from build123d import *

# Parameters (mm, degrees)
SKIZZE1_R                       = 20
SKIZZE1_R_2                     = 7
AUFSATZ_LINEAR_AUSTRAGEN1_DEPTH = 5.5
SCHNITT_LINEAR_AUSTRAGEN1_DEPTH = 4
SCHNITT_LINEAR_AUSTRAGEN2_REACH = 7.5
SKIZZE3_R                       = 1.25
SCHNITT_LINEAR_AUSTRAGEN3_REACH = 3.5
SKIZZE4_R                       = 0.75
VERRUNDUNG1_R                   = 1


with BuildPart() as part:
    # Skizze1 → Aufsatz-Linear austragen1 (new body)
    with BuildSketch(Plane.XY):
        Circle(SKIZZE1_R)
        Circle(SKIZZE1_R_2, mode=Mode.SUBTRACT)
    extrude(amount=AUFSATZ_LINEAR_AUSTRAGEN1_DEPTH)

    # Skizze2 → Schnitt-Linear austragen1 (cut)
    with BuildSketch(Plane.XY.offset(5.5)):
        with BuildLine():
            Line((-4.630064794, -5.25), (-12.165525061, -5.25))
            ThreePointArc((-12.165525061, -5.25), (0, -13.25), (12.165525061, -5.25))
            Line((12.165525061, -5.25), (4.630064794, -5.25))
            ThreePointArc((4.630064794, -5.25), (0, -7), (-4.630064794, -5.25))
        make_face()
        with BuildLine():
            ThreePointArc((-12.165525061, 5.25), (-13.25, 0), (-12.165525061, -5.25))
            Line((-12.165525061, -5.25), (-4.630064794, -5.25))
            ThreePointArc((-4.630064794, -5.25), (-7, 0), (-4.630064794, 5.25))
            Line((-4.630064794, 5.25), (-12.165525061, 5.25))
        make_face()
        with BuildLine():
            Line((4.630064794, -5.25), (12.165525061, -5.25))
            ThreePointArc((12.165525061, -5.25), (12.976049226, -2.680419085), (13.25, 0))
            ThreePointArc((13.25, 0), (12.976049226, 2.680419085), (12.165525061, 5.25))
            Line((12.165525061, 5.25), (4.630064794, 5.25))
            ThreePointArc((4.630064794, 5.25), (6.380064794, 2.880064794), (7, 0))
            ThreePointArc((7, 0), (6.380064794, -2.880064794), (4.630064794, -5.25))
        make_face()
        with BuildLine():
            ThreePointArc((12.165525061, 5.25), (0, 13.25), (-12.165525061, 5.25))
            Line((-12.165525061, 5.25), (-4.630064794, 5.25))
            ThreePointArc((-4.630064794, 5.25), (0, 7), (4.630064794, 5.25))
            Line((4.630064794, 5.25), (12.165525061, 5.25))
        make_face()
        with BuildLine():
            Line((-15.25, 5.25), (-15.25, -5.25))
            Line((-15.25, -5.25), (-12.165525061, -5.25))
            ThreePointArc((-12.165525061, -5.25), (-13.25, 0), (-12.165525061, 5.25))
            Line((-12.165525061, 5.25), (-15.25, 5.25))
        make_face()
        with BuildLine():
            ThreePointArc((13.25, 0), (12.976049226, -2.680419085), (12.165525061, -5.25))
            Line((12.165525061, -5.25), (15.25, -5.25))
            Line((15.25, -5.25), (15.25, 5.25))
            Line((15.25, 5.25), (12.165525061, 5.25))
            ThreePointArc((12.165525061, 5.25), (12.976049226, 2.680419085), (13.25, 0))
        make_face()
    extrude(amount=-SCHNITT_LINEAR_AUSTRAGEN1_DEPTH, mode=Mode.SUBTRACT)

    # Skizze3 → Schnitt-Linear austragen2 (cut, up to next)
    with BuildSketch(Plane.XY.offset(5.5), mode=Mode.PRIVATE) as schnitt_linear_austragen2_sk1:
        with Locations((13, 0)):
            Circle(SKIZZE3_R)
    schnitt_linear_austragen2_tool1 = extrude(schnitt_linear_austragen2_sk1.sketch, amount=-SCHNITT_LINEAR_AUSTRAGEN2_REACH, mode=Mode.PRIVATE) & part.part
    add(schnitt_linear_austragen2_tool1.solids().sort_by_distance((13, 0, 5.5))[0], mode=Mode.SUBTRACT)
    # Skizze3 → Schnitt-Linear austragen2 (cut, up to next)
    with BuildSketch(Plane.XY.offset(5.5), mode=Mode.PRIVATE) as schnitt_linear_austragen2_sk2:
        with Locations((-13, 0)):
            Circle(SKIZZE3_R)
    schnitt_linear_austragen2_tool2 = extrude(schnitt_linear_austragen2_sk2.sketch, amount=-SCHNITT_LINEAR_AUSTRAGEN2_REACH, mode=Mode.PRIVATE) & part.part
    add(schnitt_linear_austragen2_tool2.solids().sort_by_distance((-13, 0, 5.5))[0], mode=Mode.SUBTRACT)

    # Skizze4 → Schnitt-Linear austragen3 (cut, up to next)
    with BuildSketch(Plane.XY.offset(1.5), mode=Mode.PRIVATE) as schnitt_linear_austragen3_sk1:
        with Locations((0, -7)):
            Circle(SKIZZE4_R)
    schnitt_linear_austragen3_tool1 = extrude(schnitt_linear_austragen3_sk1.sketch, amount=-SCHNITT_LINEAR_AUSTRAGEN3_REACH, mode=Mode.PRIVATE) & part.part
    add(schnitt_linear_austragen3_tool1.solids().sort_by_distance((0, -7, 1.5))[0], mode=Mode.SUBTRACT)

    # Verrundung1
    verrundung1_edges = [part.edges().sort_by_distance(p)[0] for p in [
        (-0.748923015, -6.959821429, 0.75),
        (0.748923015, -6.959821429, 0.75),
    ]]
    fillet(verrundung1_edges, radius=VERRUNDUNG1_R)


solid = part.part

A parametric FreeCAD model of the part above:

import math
import FreeCAD as App
import Part
import Sketcher

V = App.Vector
Q = App.Units.Quantity


def edges_at(feature, points):
    """Names of the edges that pass closest to the given points."""
    edges = feature.Shape.Edges
    near = lambda p: min(range(len(edges)), key=lambda i: edges[i].distToShape(Part.Vertex(*p))[0])
    return sorted({f"Edge{near(p) + 1}" for p in points})

doc = App.newDocument("Part")
body = doc.addObject("PartDesign::Body", "Body")

sketch1 = doc.addObject("Sketcher::SketchObject", "Sketch")
body.addObject(sketch1)
sketch1.AttachmentSupport = (doc.XY_Plane, [""])
sketch1.MapMode = "FlatFace"
sketch1.addGeometry([
    Part.Circle(V(0, 0, 0), V(0, 0, 1), 20),
    Part.Circle(V(0, 0, 0), V(0, 0, 1), 7),
], False)
sketch1.addConstraint([
    Sketcher.Constraint("Coincident", 0, 3, -1, 1),
    Sketcher.Constraint("Coincident", 1, 3, -1, 1),
    Sketcher.Constraint("Diameter", 0, Q("40 mm")),
    Sketcher.Constraint("Diameter", 1, Q("14 mm")),
])
pad1 = doc.addObject("PartDesign::Pad", "Pad")
body.addObject(pad1)
pad1.Profile = sketch1
pad1.Length = 5.5

sketch2 = doc.addObject("Sketcher::SketchObject", "Sketch001")
body.addObject(sketch2)
sketch2.AttachmentSupport = (doc.XY_Plane, [""])
sketch2.MapMode = "FlatFace"
sketch2.AttachmentOffset = App.Placement(V(0, 0, 5.5), App.Rotation())
sketch2.addGeometry([
    Part.ArcOfCircle(Part.Circle(V(0, 0, 0), V(0, 0, 1), 13.3), math.radians(-157), math.radians(-23)),
    Part.LineSegment(V(12.2, -5.2, 0), V(15.2, -5.2, 0)),
    Part.LineSegment(V(15.2, -5.2, 0), V(15.2, 5.2, 0)),
    Part.LineSegment(V(15.2, 5.2, 0), V(12.2, 5.2, 0)),
    Part.ArcOfCircle(Part.Circle(V(0, 0, 0), V(0, 0, 1), 13.3), math.radians(23), math.radians(157)),
    Part.LineSegment(V(-12.2, 5.2, 0), V(-15.2, 5.2, 0)),
    Part.LineSegment(V(-15.2, 5.2, 0), V(-15.2, -5.2, 0)),
    Part.LineSegment(V(-15.2, -5.2, 0), V(-12.2, -5.2, 0)),
    Part.ArcOfCircle(Part.Circle(V(0, 0, 0), V(0, 0, 1), 7), math.radians(0), math.radians(49)),
    Part.ArcOfCircle(Part.Circle(V(0, 0, 0), V(0, 0, 1), 7), math.radians(-49), math.radians(0)),
    Part.ArcOfCircle(Part.Circle(V(0, 0, 0), V(0, 0, 1), 7), math.radians(-131), math.radians(-49)),
    Part.ArcOfCircle(Part.Circle(V(0, 0, 0), V(0, 0, 1), 7), math.radians(131), math.radians(229)),
    Part.ArcOfCircle(Part.Circle(V(0, 0, 0), V(0, 0, 1), 7), math.radians(49), math.radians(131)),
], False)
sketch2.addConstraint([
    Sketcher.Constraint("Coincident", 0, 2, 1, 1),
    Sketcher.Constraint("Coincident", 1, 2, 2, 1),
    Sketcher.Constraint("Coincident", 2, 2, 3, 1),
    Sketcher.Constraint("Coincident", 3, 2, 4, 1),
    Sketcher.Constraint("Coincident", 4, 2, 5, 1),
    Sketcher.Constraint("Coincident", 5, 2, 6, 1),
    Sketcher.Constraint("Coincident", 6, 2, 7, 1),
    Sketcher.Constraint("Coincident", 7, 2, 0, 1),
    Sketcher.Constraint("Tangent", 8, 1, 9, 2),
    Sketcher.Constraint("Tangent", 9, 1, 10, 2),
    Sketcher.Constraint("Tangent", 10, 1, 11, 2),
    Sketcher.Constraint("Tangent", 11, 1, 12, 2),
    Sketcher.Constraint("Tangent", 12, 1, 8, 2),
    Sketcher.Constraint("Horizontal", 1),
    Sketcher.Constraint("Vertical", 2),
    Sketcher.Constraint("Horizontal", 3),
    Sketcher.Constraint("Horizontal", 5),
    Sketcher.Constraint("Vertical", 6),
    Sketcher.Constraint("Horizontal", 7),
    Sketcher.Constraint("Coincident", 0, 3, -1, 1),
    Sketcher.Constraint("Coincident", 4, 3, -1, 1),
    Sketcher.Constraint("Coincident", 8, 3, -1, 1),
    Sketcher.Constraint("Coincident", 10, 3, -1, 1),
    Sketcher.Constraint("Equal", 0, 4),
    Sketcher.Constraint("Symmetric", 1, 2, 5, 2, -1, 1),
    Sketcher.Constraint("PointOnObject", 8, 1, -1),
    Sketcher.Constraint("Horizontal", 3, 2, 4, 2),
    Sketcher.Constraint("Horizontal", 1, 2, 6, 2),
    Sketcher.Constraint("Horizontal", 7, 2, 9, 1),
    Sketcher.Constraint("Horizontal", 9, 1, 10, 1),
    Sketcher.Constraint("Horizontal", 5, 2, 11, 1),
    Sketcher.Constraint("Horizontal", 11, 1, 12, 1),
    Sketcher.Constraint("Radius", 8, Q("7 mm")),
    Sketcher.Constraint("Radius", 0, Q("13.25 mm")),
    Sketcher.Constraint("DistanceY", 2, 1, 2, 2, Q("10.5 mm")),
    Sketcher.Constraint("DistanceX", -1, 1, 1, 2, Q("15.25 mm")),
])
pocket1 = doc.addObject("PartDesign::Pocket", "Pocket")
body.addObject(pocket1)
pocket1.Profile = sketch2
pocket1.Length = 4

sketch3 = doc.addObject("Sketcher::SketchObject", "Sketch002")
body.addObject(sketch3)
sketch3.AttachmentSupport = (doc.XY_Plane, [""])
sketch3.MapMode = "FlatFace"
sketch3.AttachmentOffset = App.Placement(V(0, 0, 5.5), App.Rotation())
sketch3.addGeometry(Part.Circle(V(13, 0, 0), V(0, 0, 1), 1.2), False)
sketch3.addConstraint([
    Sketcher.Constraint("PointOnObject", 0, 3, -1),
    Sketcher.Constraint("Diameter", 0, Q("2.5 mm")),
    Sketcher.Constraint("DistanceX", -1, 1, 0, 3, Q("13 mm")),
])
pocket2 = doc.addObject("PartDesign::Pocket", "Pocket001")
body.addObject(pocket2)
pocket2.Profile = sketch3
pocket2.Length = 5.5

sketch4 = doc.addObject("Sketcher::SketchObject", "Sketch003")
body.addObject(sketch4)
sketch4.AttachmentSupport = (doc.XY_Plane, [""])
sketch4.MapMode = "FlatFace"
sketch4.AttachmentOffset = App.Placement(V(0, 0, 5.5), App.Rotation())
sketch4.addGeometry(Part.Circle(V(-13, 0, 0), V(0, 0, 1), 1.2), False)
sketch4.addConstraint([
    Sketcher.Constraint("PointOnObject", 0, 3, -1),
    Sketcher.Constraint("Diameter", 0, Q("2.5 mm")),
    Sketcher.Constraint("DistanceX", 0, 3, -1, 1, Q("13 mm")),
])
pocket3 = doc.addObject("PartDesign::Pocket", "Pocket002")
body.addObject(pocket3)
pocket3.Profile = sketch4
pocket3.Length = 5.5

sketch5 = doc.addObject("Sketcher::SketchObject", "Sketch004")
body.addObject(sketch5)
sketch5.AttachmentSupport = (doc.XY_Plane, [""])
sketch5.MapMode = "FlatFace"
sketch5.AttachmentOffset = App.Placement(V(0, 0, 1.5), App.Rotation())
sketch5.addGeometry(Part.Circle(V(0, -7, 0), V(0, 0, 1), 0.8), False)
sketch5.addConstraint([
    Sketcher.Constraint("PointOnObject", 0, 3, -2),
    Sketcher.Constraint("Diameter", 0, Q("1.5 mm")),
    Sketcher.Constraint("DistanceY", 0, 3, -1, 1, Q("7 mm")),
])
pocket4 = doc.addObject("PartDesign::Pocket", "Pocket003")
body.addObject(pocket4)
pocket4.Profile = sketch5
pocket4.Type = "UpToFirst"
doc.recompute()

fillet = doc.addObject("PartDesign::Fillet", "Fillet")
body.addObject(fillet)
fillet.Base = (pocket4, edges_at(pocket4, [(-0.749, -6.96, 0.75), (0.749, -6.96, 0.75)]))
fillet.Radius = 1

doc.recompute()
